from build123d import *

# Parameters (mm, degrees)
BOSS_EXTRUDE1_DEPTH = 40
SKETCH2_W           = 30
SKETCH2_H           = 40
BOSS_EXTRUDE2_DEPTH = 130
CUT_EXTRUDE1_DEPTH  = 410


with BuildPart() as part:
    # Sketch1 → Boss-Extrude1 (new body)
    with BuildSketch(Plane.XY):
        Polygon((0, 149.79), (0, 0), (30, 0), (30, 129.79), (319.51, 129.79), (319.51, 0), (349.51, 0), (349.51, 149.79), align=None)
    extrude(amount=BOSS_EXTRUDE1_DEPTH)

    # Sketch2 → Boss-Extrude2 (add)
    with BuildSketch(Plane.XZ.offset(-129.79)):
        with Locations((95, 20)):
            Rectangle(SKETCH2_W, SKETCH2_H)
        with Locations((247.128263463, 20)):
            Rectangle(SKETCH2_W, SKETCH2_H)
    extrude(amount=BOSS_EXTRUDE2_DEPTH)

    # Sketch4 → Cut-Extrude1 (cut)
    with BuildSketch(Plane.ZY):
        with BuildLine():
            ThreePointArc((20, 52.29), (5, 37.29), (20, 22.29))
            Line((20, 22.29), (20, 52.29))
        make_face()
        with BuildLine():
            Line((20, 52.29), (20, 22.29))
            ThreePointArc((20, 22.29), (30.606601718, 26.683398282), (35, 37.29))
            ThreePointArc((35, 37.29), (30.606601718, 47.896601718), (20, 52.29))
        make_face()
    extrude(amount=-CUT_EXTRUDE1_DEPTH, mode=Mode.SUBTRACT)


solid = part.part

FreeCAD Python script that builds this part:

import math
import FreeCAD as App
import Part
import Sketcher
from FreeCAD import Vector


def add_polygon(sketch, points):
    """Adds a closed chain of lines whose ends are joined by coincident constraints."""
    first, n = sketch.GeometryCount, len(points)
    for a, b in zip(points, points[1:] + points[:1]):
        sketch.addGeometry(Part.LineSegment(App.Vector(*a, 0), App.Vector(*b, 0)), False)
    for i in range(n):
        sketch.addConstraint(Sketcher.Constraint("Coincident", first + i, 2, first + (i + 1) % n, 1))

doc = App.newDocument("Part")
body = doc.addObject("PartDesign::Body", "Body")

# Sketch on XY plane
sketch1 = doc.addObject("Sketcher::SketchObject", "Sketch")
body.addObject(sketch1)
sketch1.AttachmentSupport = (doc.XY_Plane, [""])
sketch1.MapMode = "FlatFace"
add_polygon(sketch1, [(0, 150), (0, 0), (30, 0), (30, 130), (320, 130), (320, 0), (350, 0), (350, 150)])  # lines 0-7
sketch1.addConstraint([
    Sketcher.Constraint("Vertical", 0),
    Sketcher.Constraint("Horizontal", 1),
    Sketcher.Constraint("Vertical", 2),
    Sketcher.Constraint("Horizontal", 3),
    Sketcher.Constraint("Vertical", 4),
    Sketcher.Constraint("Horizontal", 5),
    Sketcher.Constraint("Vertical", 6),
    Sketcher.Constraint("Horizontal", 7),
    Sketcher.Constraint("Coincident", 0, 2, -1, 1),
    Sketcher.Constraint("PointOnObject", 4, 2, -1),
    Sketcher.Constraint("Equal", 1, 5),
    Sketcher.Constraint("DistanceX", 1, 1, 1, 2, 30.0),
    Sketcher.Constraint("DistanceY", 3, 2, 6, 2, 20.0),
    Sketcher.Constraint("DistanceX", 3, 1, 3, 2, 289.51),
    Sketcher.Constraint("DistanceY", 0, 2, 0, 1, 149.79),
])
pad1 = doc.addObject("PartDesign::Pad", "Pad")
body.addObject(pad1)
pad1.Profile = sketch1
pad1.Length = 40

# Sketch on XZ plane
sketch2 = doc.addObject("Sketcher::SketchObject", "Sketch001")
body.addObject(sketch2)
sketch2.AttachmentSupport = (doc.XZ_Plane, [""])
sketch2.MapMode = "FlatFace"
sketch2.AttachmentOffset = App.Placement(Vector(0, 0, -129.79), App.Rotation())
add_polygon(sketch2, [(80, 40), (80, 0), (110, 0), (110, 40)])  # lines 0-3
add_polygon(sketch2, [(232, 40), (232, 0), (262, 0), (262, 40)])  # lines 4-7
sketch2.addConstraint([
    Sketcher.Constraint("Vertical", 0),
    Sketcher.Constraint("Horizontal", 1),
    Sketcher.Constraint("Vertical", 2),
    Sketcher.Constraint("Horizontal", 3),
    Sketcher.Constraint("Vertical", 4),
    Sketcher.Constraint("Horizontal", 5),
    Sketcher.Constraint("Vertical", 6),
    Sketcher.Constraint("Horizontal", 7),
    Sketcher.Constraint("PointOnObject", 0, 2, -1),
    Sketcher.Constraint("PointOnObject", 4, 2, -1),
    Sketcher.Constraint("Horizontal", 3, 2, 6, 2),
    Sketcher.Constraint("Equal", 3, 5),
    Sketcher.Constraint("DistanceX", 1, 1, 1, 2, 30.0),
    Sketcher.Constraint("DistanceY", 0, 2, 0, 1, 40.0),
    Sketcher.Constraint("DistanceX", -1, 1, 0, 2, 80.0),
    Sketcher.Constraint("DistanceX", -1, 1, 4, 2, 232.128263),
])
pad2 = doc.addObject("PartDesign::Pad", "Pad001")
body.addObject(pad2)
pad2.Profile = sketch2
pad2.Length = 130

# Sketch on YZ plane
sketch3 = doc.addObject("Sketcher::SketchObject", "Sketch002")
body.addObject(sketch3)
sketch3.AttachmentSupport = (doc.YZ_Plane, [""])
sketch3.MapMode = "FlatFace"
sketch3.addGeometry([
    Part.ArcOfCircle(Part.Circle(Vector(37, 20, 0), Vector(0, 0, 1), 15), math.radians(180), math.radians(360)),
    Part.ArcOfCircle(Part.Circle(Vector(37, 20, 0), Vector(0, 0, 1), 15), math.radians(90), math.radians(180)),
    Part.ArcOfCircle(Part.Circle(Vector(37, 20, 0), Vector(0, 0, 1), 15), math.radians(0), math.radians(90)),
], False)
sketch3.addConstraint([
    Sketcher.Constraint("Tangent", 0, 1, 1, 2),
    Sketcher.Constraint("Tangent", 1, 1, 2, 2),
    Sketcher.Constraint("Tangent", 2, 1, 0, 2),
    Sketcher.Constraint("Horizontal", 2, 3, 0, 1),
    Sketcher.Constraint("Horizontal", 0, 1, 2, 1),
    Sketcher.Constraint("Vertical", 2, 3, 1, 1),
    Sketcher.Constraint("Radius", 0, 15.0),
    Sketcher.Constraint("DistanceY", -1, 1, 0, 3, 20.0),
    Sketcher.Constraint("DistanceX", -1, 1, 0, 3, 37.29),
])
pocket1 = doc.addObject("PartDesign::Pocket", "Pocket")
body.addObject(pocket1)
pocket1.Profile = sketch3
pocket1.Length = 410
pocket1.Reversed = True

doc.recompute()
